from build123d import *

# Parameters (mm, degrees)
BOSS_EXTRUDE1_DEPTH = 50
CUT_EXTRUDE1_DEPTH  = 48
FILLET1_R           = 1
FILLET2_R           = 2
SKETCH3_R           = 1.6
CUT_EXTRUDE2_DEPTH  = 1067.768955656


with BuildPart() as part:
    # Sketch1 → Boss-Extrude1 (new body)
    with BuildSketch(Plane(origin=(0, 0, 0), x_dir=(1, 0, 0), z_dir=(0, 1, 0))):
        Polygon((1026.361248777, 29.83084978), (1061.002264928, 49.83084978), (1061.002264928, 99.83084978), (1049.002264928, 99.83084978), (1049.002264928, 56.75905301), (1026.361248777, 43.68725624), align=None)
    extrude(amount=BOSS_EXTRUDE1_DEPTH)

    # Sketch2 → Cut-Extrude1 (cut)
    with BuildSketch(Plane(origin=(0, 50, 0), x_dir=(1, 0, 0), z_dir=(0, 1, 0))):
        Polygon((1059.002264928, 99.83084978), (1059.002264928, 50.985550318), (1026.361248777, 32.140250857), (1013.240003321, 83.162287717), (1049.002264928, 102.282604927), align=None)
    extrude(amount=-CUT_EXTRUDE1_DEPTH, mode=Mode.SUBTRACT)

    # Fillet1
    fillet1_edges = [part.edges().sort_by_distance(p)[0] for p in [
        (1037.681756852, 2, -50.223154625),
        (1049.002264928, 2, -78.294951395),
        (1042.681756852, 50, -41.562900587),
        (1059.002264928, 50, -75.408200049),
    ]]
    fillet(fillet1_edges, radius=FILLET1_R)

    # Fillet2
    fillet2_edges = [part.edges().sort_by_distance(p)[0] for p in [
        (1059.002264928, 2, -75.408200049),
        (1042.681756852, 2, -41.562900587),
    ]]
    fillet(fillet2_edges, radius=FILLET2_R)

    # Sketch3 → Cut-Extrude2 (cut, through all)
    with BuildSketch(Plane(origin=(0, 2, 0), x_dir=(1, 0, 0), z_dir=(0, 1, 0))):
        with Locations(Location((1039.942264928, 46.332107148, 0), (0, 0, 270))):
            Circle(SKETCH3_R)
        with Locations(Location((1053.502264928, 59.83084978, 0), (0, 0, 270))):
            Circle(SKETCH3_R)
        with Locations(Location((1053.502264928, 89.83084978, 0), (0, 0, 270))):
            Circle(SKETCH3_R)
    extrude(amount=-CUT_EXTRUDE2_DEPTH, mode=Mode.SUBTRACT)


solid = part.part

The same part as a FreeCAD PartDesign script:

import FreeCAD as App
import Part
import Sketcher
from FreeCAD import Vector
Q = App.Units.Quantity


def edges_at(feature, points):
    """Names of the edges that pass closest to the given points."""
    edges = feature.Shape.Edges
    near = lambda p: min(range(len(edges)), key=lambda i: edges[i].distToShape(Part.Vertex(*p))[0])
    return sorted({f"Edge{near(p) + 1}" for p in points})

doc = App.newDocument("Part")
body = doc.addObject("PartDesign::Body", "Body")

# Sketch on XZ plane
sketch1 = body.newObject("Sketcher::SketchObject", "Sketch")
sketch1.AttachmentSupport = (doc.getObject("XZ_Plane"), [""])
sketch1.MapMode = "FlatFace"
sketch1.addGeometry(Part.LineSegment(Vector(1026.361249, -29.83085, 0), Vector(1061.002265, -49.83085, 0)), False)
sketch1.addGeometry(Part.LineSegment(Vector(1061.002265, -49.83085, 0), Vector(1061.002265, -99.83085, 0)), False)
sketch1.addGeometry(Part.LineSegment(Vector(1061.002265, -99.83085, 0), Vector(1049.002265, -99.83085, 0)), False)
sketch1.addGeometry(Part.LineSegment(Vector(1049.002265, -99.83085, 0), Vector(1049.002265, -56.759053, 0)), False)
sketch1.addGeometry(Part.LineSegment(Vector(1049.002265, -56.759053, 0), Vector(1026.361249, -43.687256, 0)), False)
sketch1.addGeometry(Part.LineSegment(Vector(1026.361249, -43.687256, 0), Vector(1026.361249, -29.83085, 0)), False)
sketch1.addConstraint(Sketcher.Constraint("Coincident", 0, 2, 1, 1))
sketch1.addConstraint(Sketcher.Constraint("Coincident", 1, 2, 2, 1))
sketch1.addConstraint(Sketcher.Constraint("Coincident", 2, 2, 3, 1))
sketch1.addConstraint(Sketcher.Constraint("Coincident", 3, 2, 4, 1))
sketch1.addConstraint(Sketcher.Constraint("Coincident", 4, 2, 5, 1))
sketch1.addConstraint(Sketcher.Constraint("Coincident", 5, 2, 0, 1))
sketch1.addConstraint(Sketcher.Constraint("Vertical", 1))
sketch1.addConstraint(Sketcher.Constraint("Horizontal", 2))
sketch1.addConstraint(Sketcher.Constraint("Vertical", 3))
sketch1.addConstraint(Sketcher.Constraint("Vertical", 5))
sketch1.addConstraint(Sketcher.Constraint("Parallel", 0, 4))
sketch1.addConstraint(Sketcher.Constraint("DistanceX", 2, 2, 2, 1, 12.0))
sketch1.addConstraint(Sketcher.Constraint("DistanceY", 1, 2, 1, 1, 50.0))
sketch1.addConstraint(Sketcher.Constraint("Angle", 0, Q("-30 deg")))
sketch1.addConstraint(Sketcher.Constraint("Distance", 0, 40.0))
sketch1.addConstraint(Sketcher.Constraint("DistanceY", 3, 1, 3, 2, 43.071797))
sketch1.addConstraint(Sketcher.Constraint("DistanceY", 0, 2, -1, 1, 49.83085))
sketch1.addConstraint(Sketcher.Constraint("DistanceX", -1, 1, 4, 2, 1026.361249))
pad1 = body.newObject("PartDesign::Pad", "Pad")
pad1.Profile = sketch1
pad1.Length = 50
pad1.Reversed = True

# Sketch on XZ plane
sketch2 = body.newObject("Sketcher::SketchObject", "Sketch001")
sketch2.AttachmentSupport = (doc.getObject("XZ_Plane"), [""])
sketch2.MapMode = "FlatFace"
sketch2.AttachmentOffset = App.Placement(Vector(0, 0, -50), App.Rotation())
sketch2.addGeometry(Part.LineSegment(Vector(1059.002265, -50.98555, 0), Vector(1059.002265, -99.83085, 0)), False)
sketch2.addGeometry(Part.LineSegment(Vector(1059.002265, -99.83085, 0), Vector(1049.002265, -102.282605, 0)), False)
sketch2.addGeometry(Part.LineSegment(Vector(1049.002265, -102.282605, 0), Vector(1013.240003, -83.162288, 0)), False)
sketch2.addGeometry(Part.LineSegment(Vector(1013.240003, -83.162288, 0), Vector(1026.361249, -32.140251, 0)), False)
sketch2.addGeometry(Part.LineSegment(Vector(1026.361249, -32.140251, 0), Vector(1059.002265, -50.98555, 0)), False)
sketch2.addConstraint(Sketcher.Constraint("Coincident", 0, 2, 1, 1))
sketch2.addConstraint(Sketcher.Constraint("Coincident", 1, 2, 2, 1))
sketch2.addConstraint(Sketcher.Constraint("Coincident", 2, 2, 3, 1))
sketch2.addConstraint(Sketcher.Constraint("Coincident", 3, 2, 4, 1))
sketch2.addConstraint(Sketcher.Constraint("Coincident", 4, 2, 0, 1))
sketch2.addConstraint(Sketcher.Constraint("Vertical", 0))
sketch2.addConstraint(Sketcher.Constraint("Angle", 4, Q("-30 deg")))
sketch2.addConstraint(Sketcher.Constraint("DistanceX", 1, 2, 0, 2, 10.0))
sketch2.addConstraint(Sketcher.Constraint("DistanceY", 0, 2, 0, 1, 48.845299))
sketch2.addConstraint(Sketcher.Constraint("Distance", 4, 37.690599))
sketch2.addConstraint(Sketcher.Constraint("Distance", 1, 10.296169))
sketch2.addConstraint(Sketcher.Constraint("Distance", 3, 52.682211))
sketch2.addConstraint(Sketcher.Constraint("DistanceY", 0, 2, -1, 1, 99.83085))
sketch2.addConstraint(Sketcher.Constraint("DistanceX", -1, 1, 3, 2, 1026.361249))
sketch2.addConstraint(Sketcher.Constraint("DistanceX", 2, 2, 1, 2, 35.762262))
pocket1 = body.newObject("PartDesign::Pocket", "Pocket")
pocket1.Profile = sketch2
pocket1.Length = 48
pocket1.Reversed = True
doc.recompute()

fillet = body.newObject("PartDesign::Fillet", "Fillet")
fillet.Base = (pocket1, edges_at(pocket1, [
    (1037.682, 2, -50.223),
    (1049.002, 2, -78.295),
    (1042.682, 50, -41.563),
    (1059.002, 50, -75.408),
]))
fillet.Radius = 1
doc.recompute()

fillet2 = body.newObject("PartDesign::Fillet", "Fillet001")
fillet2.Base = (fillet, edges_at(fillet, [(1059.002, 2, -75.408), (1042.682, 2, -41.563)]))
fillet2.Radius = 2

# Sketch on XZ plane
sketch3 = body.newObject("Sketcher::SketchObject", "Sketch002")
sketch3.AttachmentSupport = (doc.getObject("XZ_Plane"), [""])
sketch3.MapMode = "FlatFace"
sketch3.AttachmentOffset = App.Placement(Vector(0, 0, -2), App.Rotation())
sketch3.addGeometry(Part.Circle(Vector(1039.942265, -46.332107, 0), Vector(0, 0, 1), 1.6), False)
sketch3.addGeometry(Part.Circle(Vector(1053.502265, -59.83085, 0), Vector(0, 0, 1), 1.6), False)
sketch3.addGeometry(Part.Circle(Vector(1053.502265, -89.83085, 0), Vector(0, 0, 1), 1.6), False)
sketch3.addConstraint(Sketcher.Constraint("Equal", 0, 1))
sketch3.addConstraint(Sketcher.Constraint("Equal", 1, 2))
sketch3.addConstraint(Sketcher.Constraint("Vertical", 1, 3, 2, 3))
sketch3.addConstraint(Sketcher.Constraint("Diameter", 0, 3.2))
sketch3.addConstraint(Sketcher.Constraint("DistanceY", 2, 3, 1, 3, 30.0))
sketch3.addConstraint(Sketcher.Constraint("DistanceX", 0, 3, 1, 3, 13.56))
sketch3.addConstraint(Sketcher.Constraint("DistanceY", 1, 3, -1, 1, 59.83085))
sketch3.addConstraint(Sketcher.Constraint("DistanceX", -1, 1, 0, 3, 1039.942265))
sketch3.addConstraint(Sketcher.Constraint("DistanceY", 0, 3, -1, 1, 46.332107))
pocket2 = body.newObject("PartDesign::Pocket", "Pocket001")
pocket2.Profile = sketch3
pocket2.Type = "ThroughAll"
pocket2.Reversed = True

doc.recompute()
